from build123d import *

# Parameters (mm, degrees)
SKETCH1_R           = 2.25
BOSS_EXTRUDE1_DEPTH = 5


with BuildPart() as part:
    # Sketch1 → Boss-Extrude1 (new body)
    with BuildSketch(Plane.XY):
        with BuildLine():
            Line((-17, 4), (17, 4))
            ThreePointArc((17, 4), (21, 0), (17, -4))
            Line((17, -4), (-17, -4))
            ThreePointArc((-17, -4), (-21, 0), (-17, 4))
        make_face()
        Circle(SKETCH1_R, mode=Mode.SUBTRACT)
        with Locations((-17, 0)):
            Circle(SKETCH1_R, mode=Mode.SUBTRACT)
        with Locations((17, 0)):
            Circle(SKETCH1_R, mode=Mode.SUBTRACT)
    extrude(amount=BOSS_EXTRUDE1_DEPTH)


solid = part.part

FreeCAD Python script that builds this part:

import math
import FreeCAD as App
import Part
import Sketcher
Q = App.Units.Quantity

doc = App.newDocument("Part")
body = doc.addObject("PartDesign::Body", "Body")

sketch1 = body.newObject("Sketcher::SketchObject", "Sketch")
sketch1.AttachmentSupport = (doc.getObject("XY_Plane"), [""])
sketch1.MapMode = "FlatFace"
sketch1.addGeometry(Part.LineSegment(App.Vector(17, 4, 0), App.Vector(-17, 4, 0)), False)
sketch1.addGeometry(Part.ArcOfCircle(Part.Circle(App.Vector(-17, 0, 0), App.Vector(0, 0, 1), 4), math.radians(90), math.radians(270)), False)
sketch1.addGeometry(Part.LineSegment(App.Vector(-17, -4, 0), App.Vector(17, -4, 0)), False)
sketch1.addGeometry(Part.ArcOfCircle(Part.Circle(App.Vector(17, 0, 0), App.Vector(0, 0, 1), 4), math.radians(-90), math.radians(90)), False)
sketch1.addGeometry(Part.Circle(App.Vector(17, 0, 0), App.Vector(0, 0, 1), 2.25), False)
sketch1.addGeometry(Part.Circle(App.Vector(0, 0, 0), App.Vector(0, 0, 1), 2.25), False)
sketch1.addGeometry(Part.Circle(App.Vector(-17, 0, 0), App.Vector(0, 0, 1), 2.25), False)
sketch1.addConstraint(Sketcher.Constraint("Tangent", 0, 2, 1, 1))
sketch1.addConstraint(Sketcher.Constraint("Tangent", 1, 2, 2, 1))
sketch1.addConstraint(Sketcher.Constraint("Tangent", 2, 2, 3, 1))
sketch1.addConstraint(Sketcher.Constraint("Tangent", 3, 2, 0, 1))
sketch1.addConstraint(Sketcher.Constraint("Horizontal", 0))
sketch1.addConstraint(Sketcher.Constraint("Horizontal", 2))
sketch1.addConstraint(Sketcher.Constraint("Coincident", 5, 3, -1, 1))
sketch1.addConstraint(Sketcher.Constraint("Coincident", 4, 3, 3, 3))
sketch1.addConstraint(Sketcher.Constraint("Coincident", 6, 3, 1, 3))
sketch1.addConstraint(Sketcher.Constraint("Equal", 4, 5))
sketch1.addConstraint(Sketcher.Constraint("Equal", 5, 6))
sketch1.addConstraint(Sketcher.Constraint("Symmetric", 1, 3, 3, 3, -1, 1))
sketch1.addConstraint(Sketcher.Constraint("Radius", 1, Q("4 mm")))
sketch1.addConstraint(Sketcher.Constraint("Diameter", 4, Q("4.5 mm")))
sketch1.addConstraint(Sketcher.Constraint("DistanceX", 0, 2, 0, 1, Q("34 mm")))
pad1 = body.newObject("PartDesign::Pad", "Pad")
pad1.Profile = sketch1
pad1.Length = 5

doc.recompute()
